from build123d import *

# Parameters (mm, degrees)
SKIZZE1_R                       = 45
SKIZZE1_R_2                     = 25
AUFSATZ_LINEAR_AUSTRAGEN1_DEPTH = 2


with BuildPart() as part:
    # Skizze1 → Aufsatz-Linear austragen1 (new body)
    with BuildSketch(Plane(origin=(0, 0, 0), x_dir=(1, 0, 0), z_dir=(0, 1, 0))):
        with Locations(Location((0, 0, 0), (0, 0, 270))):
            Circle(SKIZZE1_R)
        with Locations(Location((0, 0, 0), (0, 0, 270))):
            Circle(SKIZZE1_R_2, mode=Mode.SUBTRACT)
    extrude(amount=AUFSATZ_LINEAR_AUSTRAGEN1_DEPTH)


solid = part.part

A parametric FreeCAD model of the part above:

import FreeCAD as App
import Part
import Sketcher

V = App.Vector

doc = App.newDocument("Part")
body = doc.addObject("PartDesign::Body", "Body")

# Sketch on XZ plane
sketch1 = body.newObject("Sketcher::SketchObject", "Sketch")
sketch1.AttachmentSupport = (doc.getObject("XZ_Plane"), [""])
sketch1.MapMode = "FlatFace"
sketch1.addGeometry(Part.Circle(V(0, 0, 0), V(0, 0, 1), 45), False)
sketch1.addGeometry(Part.Circle(V(0, 0, 0), V(0, 0, 1), 25), False)
sketch1.addConstraint(Sketcher.Constraint("Coincident", 0, 3, -1, 1))
sketch1.addConstraint(Sketcher.Constraint("Coincident", 1, 3, -1, 1))
sketch1.addConstraint(Sketcher.Constraint("Diameter", 0, 90.0))
sketch1.addConstraint(Sketcher.Constraint("Diameter", 1, 50.0))
pad1 = body.newObject("PartDesign::Pad", "Pad")
pad1.Profile = sketch1
pad1.Length = 2
pad1.Reversed = True

doc.recompute()
